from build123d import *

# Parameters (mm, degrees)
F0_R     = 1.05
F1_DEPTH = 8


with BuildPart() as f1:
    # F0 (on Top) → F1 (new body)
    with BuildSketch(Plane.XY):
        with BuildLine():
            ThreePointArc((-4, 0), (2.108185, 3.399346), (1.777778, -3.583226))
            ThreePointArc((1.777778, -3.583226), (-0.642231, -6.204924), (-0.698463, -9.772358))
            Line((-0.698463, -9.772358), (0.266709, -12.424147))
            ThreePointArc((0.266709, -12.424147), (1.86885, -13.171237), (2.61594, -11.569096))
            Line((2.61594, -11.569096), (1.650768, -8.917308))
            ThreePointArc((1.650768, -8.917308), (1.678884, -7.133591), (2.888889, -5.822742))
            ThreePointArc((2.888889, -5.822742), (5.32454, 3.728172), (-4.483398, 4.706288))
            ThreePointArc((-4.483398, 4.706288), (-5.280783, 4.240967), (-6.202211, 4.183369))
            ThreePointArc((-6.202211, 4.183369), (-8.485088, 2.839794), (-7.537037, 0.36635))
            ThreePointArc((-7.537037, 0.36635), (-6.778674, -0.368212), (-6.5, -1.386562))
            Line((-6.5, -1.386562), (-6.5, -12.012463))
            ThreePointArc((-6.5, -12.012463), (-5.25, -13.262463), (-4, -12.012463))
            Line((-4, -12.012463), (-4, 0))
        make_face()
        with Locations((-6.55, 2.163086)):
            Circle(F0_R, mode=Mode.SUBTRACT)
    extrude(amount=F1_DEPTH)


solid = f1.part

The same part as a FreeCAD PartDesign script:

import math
import FreeCAD as App
import Part
import Sketcher

V = App.Vector
Q = App.Units.Quantity

doc = App.newDocument("Part")
body = doc.addObject("PartDesign::Body", "Body")

# Sketch on XY plane
sketch1 = doc.addObject("Sketcher::SketchObject", "Sketch")
body.addObject(sketch1)
sketch1.AttachmentSupport = (doc.XY_Plane, [""])
sketch1.MapMode = "FlatFace"
sketch1.addGeometry([
    Part.ArcOfCircle(Part.Circle(V(0, 0, 0), V(0, 0, 1), 4), math.radians(-63.612197), math.radians(179.999994)),  # 0
    Part.ArcOfCircle(Part.Circle(V(4, -8.062258, 0), V(0, 0, 1), 5), math.radians(116.387797), math.radians(199.999996)),  # 1
    Part.LineSegment(V(-0.698463, -9.772358, 0), V(0.266709, -12.424147, 0)),  # 2
    Part.ArcOfCircle(Part.Circle(V(1.441324, -11.996621, 0), V(0, 0, 1), 1.25), math.radians(-159.999982), math.radians(20.000018)),  # 3
    Part.LineSegment(V(2.61594, -11.569096, 0), V(1.650768, -8.917308, 0)),  # 4
    Part.ArcOfCircle(Part.Circle(V(3.999999, -8.062258, 0), V(0, 0, 1), 2.499999), math.radians(116.387777), math.radians(200)),  # 5
    Part.ArcOfCircle(Part.Circle(V(-0.000001, 0, 0), V(0, 0, 1), 6.5), math.radians(-63.612194), math.radians(133.610593)),  # 6
    Part.ArcOfCircle(Part.Circle(V(-5.862903, 6.154371, 0), V(0, 0, 1), 1.999995), math.radians(-99.767724), math.radians(-46.389331)),  # 7
    Part.ArcOfCircle(Part.Circle(V(-6.549999, 2.163086, 0), V(0, 0, 1), 2.05), math.radians(80.232363), math.radians(241.217787)),  # 8
    Part.ArcOfCircle(Part.Circle(V(-8.499999, -1.386562, 0), V(0, 0, 1), 1.999999), math.radians(-0.00001), math.radians(61.217819)),  # 9
    Part.LineSegment(V(-6.5, -1.386562, 0), V(-6.5, -12.012463, 0)),  # 10
    Part.ArcOfCircle(Part.Circle(V(-5.25, -12.012463, 0), V(0, 0, 1), 1.25), math.radians(180), math.radians(360)),  # 11
    Part.LineSegment(V(-4, -12.012463, 0), V(-4, 0, 0)),  # 12
    Part.Circle(V(-6.55, 2.163086, 0), V(0, 0, 1), 1.05),  # 13
], False)
sketch1.addConstraint([
    Sketcher.Constraint("Tangent", 0, 1, 1, 1),
    Sketcher.Constraint("Tangent", 1, 2, 2, 1),
    Sketcher.Constraint("Tangent", 2, 2, 3, 1),
    Sketcher.Constraint("Tangent", 3, 2, 4, 1),
    Sketcher.Constraint("Tangent", 4, 2, 5, 2),
    Sketcher.Constraint("Tangent", 5, 1, 6, 1),
    Sketcher.Constraint("Tangent", 6, 2, 7, 2),
    Sketcher.Constraint("Tangent", 7, 1, 8, 1),
    Sketcher.Constraint("Tangent", 8, 2, 9, 2),
    Sketcher.Constraint("Tangent", 9, 1, 10, 1),
    Sketcher.Constraint("Tangent", 10, 2, 11, 1),
    Sketcher.Constraint("Tangent", 11, 2, 12, 1),
    Sketcher.Constraint("Tangent", 12, 2, 0, 2),
    Sketcher.Constraint("Vertical", 10),
    Sketcher.Constraint("Vertical", 12),
    Sketcher.Constraint("Coincident", 0, 3, -1, 1),
    Sketcher.Constraint("Coincident", 6, 3, -1, 1),
    Sketcher.Constraint("Coincident", 5, 3, 1, 3),
    Sketcher.Constraint("Coincident", 13, 3, 8, 3),
    Sketcher.Constraint("Equal", 3, 11),
    Sketcher.Constraint("Parallel", 2, 4),
    Sketcher.Constraint("Radius", 0, 4.0),
    Sketcher.Constraint("Radius", 1, 5.0),
    Sketcher.Constraint("Radius", 9, 1.999999),
    Sketcher.Constraint("Diameter", 13, 2.1),
    Sketcher.Constraint("Radius", 5, 2.499999),
    Sketcher.Constraint("Angle", 2, Q("-70.000005 deg")),
    Sketcher.Constraint("Radius", 8, 2.05),
    Sketcher.Constraint("DistanceX", -1, 1, 1, 3, 4.0),
    Sketcher.Constraint("DistanceX", 8, 3, -1, 1, 6.549999),
    Sketcher.Constraint("DistanceY", 10, 2, 10, 1, 10.625901),
    Sketcher.Constraint("Radius", 7, 1.999995),
    Sketcher.Constraint("DistanceX", 8, 3, 6, 2, 2.066601),
    Sketcher.Constraint("DistanceY", 3, 3, -1, 1, 11.996621),
])
pad1 = doc.addObject("PartDesign::Pad", "Pad")
body.addObject(pad1)
pad1.Profile = sketch1
pad1.Length = 8

doc.recompute()
